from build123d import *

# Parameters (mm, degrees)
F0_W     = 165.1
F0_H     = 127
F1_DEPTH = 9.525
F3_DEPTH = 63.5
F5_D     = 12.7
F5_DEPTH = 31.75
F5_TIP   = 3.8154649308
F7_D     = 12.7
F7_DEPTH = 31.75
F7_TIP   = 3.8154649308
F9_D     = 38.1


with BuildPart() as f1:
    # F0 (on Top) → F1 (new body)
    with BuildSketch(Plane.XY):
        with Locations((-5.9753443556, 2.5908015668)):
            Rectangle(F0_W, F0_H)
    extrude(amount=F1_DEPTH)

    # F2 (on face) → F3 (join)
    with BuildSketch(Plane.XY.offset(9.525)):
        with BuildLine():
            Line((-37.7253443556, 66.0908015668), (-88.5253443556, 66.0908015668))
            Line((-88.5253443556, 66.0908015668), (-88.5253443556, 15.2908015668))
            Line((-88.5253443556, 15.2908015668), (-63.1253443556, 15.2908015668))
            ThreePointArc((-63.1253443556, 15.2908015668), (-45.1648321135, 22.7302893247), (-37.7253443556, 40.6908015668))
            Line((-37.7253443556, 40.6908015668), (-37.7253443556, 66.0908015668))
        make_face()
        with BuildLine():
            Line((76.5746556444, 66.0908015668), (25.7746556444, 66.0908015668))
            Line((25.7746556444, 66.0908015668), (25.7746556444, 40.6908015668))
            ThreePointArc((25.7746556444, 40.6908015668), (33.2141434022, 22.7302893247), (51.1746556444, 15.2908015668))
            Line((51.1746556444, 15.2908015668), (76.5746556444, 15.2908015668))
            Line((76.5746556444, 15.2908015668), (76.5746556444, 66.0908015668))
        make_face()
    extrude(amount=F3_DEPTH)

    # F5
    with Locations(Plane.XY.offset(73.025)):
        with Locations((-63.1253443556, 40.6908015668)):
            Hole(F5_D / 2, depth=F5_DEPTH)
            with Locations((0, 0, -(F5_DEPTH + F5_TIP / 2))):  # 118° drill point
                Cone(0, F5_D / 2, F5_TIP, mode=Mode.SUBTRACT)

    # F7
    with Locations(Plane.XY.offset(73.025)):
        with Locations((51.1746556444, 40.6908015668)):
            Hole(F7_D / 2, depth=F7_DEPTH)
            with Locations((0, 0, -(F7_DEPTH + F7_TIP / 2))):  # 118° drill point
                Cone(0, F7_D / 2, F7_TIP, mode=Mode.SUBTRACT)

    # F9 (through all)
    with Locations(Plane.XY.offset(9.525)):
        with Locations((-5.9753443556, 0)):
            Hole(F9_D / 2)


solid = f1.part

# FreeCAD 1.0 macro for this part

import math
import FreeCAD as App
import Part
import Sketcher
from FreeCAD import Vector
Q = App.Units.Quantity

doc = App.newDocument("Part")
body = doc.addObject("PartDesign::Body", "Body")

# Sketch on XY plane
sketch1 = body.newObject("Sketcher::SketchObject", "Sketch")
sketch1.AttachmentSupport = (doc.getObject("XY_Plane"), [""])
sketch1.MapMode = "FlatFace"
sketch1.addGeometry([
    Part.LineSegment(Vector(-89, 66, 0), Vector(-89, -61, 0)),
    Part.LineSegment(Vector(-89, -61, 0), Vector(77, -61, 0)),
    Part.LineSegment(Vector(77, -61, 0), Vector(77, 66, 0)),
    Part.LineSegment(Vector(77, 66, 0), Vector(-89, 66, 0)),
], False)
sketch1.addConstraint([
    Sketcher.Constraint("Coincident", 0, 2, 1, 1),
    Sketcher.Constraint("Coincident", 1, 2, 2, 1),
    Sketcher.Constraint("Coincident", 2, 2, 3, 1),
    Sketcher.Constraint("Coincident", 3, 2, 0, 1),
    Sketcher.Constraint("Vertical", 0),
    Sketcher.Constraint("Horizontal", 1),
    Sketcher.Constraint("Vertical", 2),
    Sketcher.Constraint("Horizontal", 3),
    Sketcher.Constraint("DistanceY", 0, 2, 0, 1, Q("5 in")),
    Sketcher.Constraint("DistanceX", 1, 1, 1, 2, Q("6.5 in")),
    Sketcher.Constraint("DistanceY", 0, 2, -1, 1, Q("2.3979999 in")),
    Sketcher.Constraint("DistanceX", 0, 2, -1, 1, Q("88.525344 mm")),
])
pad1 = body.newObject("PartDesign::Pad", "Pad")
pad1.Profile = sketch1
pad1.Length = Q("0.375 in")

# Sketch on XY plane
sketch2 = body.newObject("Sketcher::SketchObject", "Sketch001")
sketch2.AttachmentSupport = (doc.getObject("XY_Plane"), [""])
sketch2.MapMode = "FlatFace"
sketch2.AttachmentOffset = App.Placement(Vector(0, 0, 0.375 * 25.4), App.Rotation())
sketch2.addGeometry([
    Part.LineSegment(Vector(-38, 66, 0), Vector(-89, 66, 0)),  # 0
    Part.LineSegment(Vector(-89, 66, 0), Vector(-89, 15, 0)),  # 1
    Part.LineSegment(Vector(-89, 15, 0), Vector(-63, 15, 0)),  # 2
    Part.ArcOfCircle(Part.Circle(Vector(-63, 41, 0), Vector(0, 0, 1), 25), math.radians(-90), math.radians(0)),  # 3
    Part.LineSegment(Vector(-38, 41, 0), Vector(-38, 66, 0)),  # 4
    Part.LineSegment(Vector(77, 66, 0), Vector(26, 66, 0)),  # 5
    Part.LineSegment(Vector(26, 66, 0), Vector(26, 41, 0)),  # 6
    Part.ArcOfCircle(Part.Circle(Vector(51, 41, 0), Vector(0, 0, 1), 25), math.radians(180), math.radians(270)),  # 7
    Part.LineSegment(Vector(51, 15, 0), Vector(77, 15, 0)),  # 8
    Part.LineSegment(Vector(77, 15, 0), Vector(77, 66, 0)),  # 9
], False)
sketch2.addConstraint([
    Sketcher.Constraint("Coincident", 0, 2, 1, 1),
    Sketcher.Constraint("Coincident", 1, 2, 2, 1),
    Sketcher.Constraint("Tangent", 2, 2, 3, 1),
    Sketcher.Constraint("Tangent", 3, 2, 4, 1),
    Sketcher.Constraint("Coincident", 4, 2, 0, 1),
    Sketcher.Constraint("Coincident", 5, 2, 6, 1),
    Sketcher.Constraint("Tangent", 6, 2, 7, 1),
    Sketcher.Constraint("Tangent", 7, 2, 8, 1),
    Sketcher.Constraint("Coincident", 8, 2, 9, 1),
    Sketcher.Constraint("Coincident", 9, 2, 5, 1),
    Sketcher.Constraint("Horizontal", 0),
    Sketcher.Constraint("Vertical", 1),
    Sketcher.Constraint("Horizontal", 2),
    Sketcher.Constraint("Vertical", 4),
    Sketcher.Constraint("Horizontal", 5),
    Sketcher.Constraint("Vertical", 6),
    Sketcher.Constraint("Horizontal", 8),
    Sketcher.Constraint("Vertical", 9),
    Sketcher.Constraint("Equal", 3, 7),
    Sketcher.Constraint("Horizontal", 3, 3, 7, 3),
    Sketcher.Constraint("Horizontal", 4, 2, 5, 2),
    Sketcher.Constraint("Equal", 0, 5),
    Sketcher.Constraint("Equal", 5, 1),
    Sketcher.Constraint("Radius", 3, Q("1 in")),
    Sketcher.Constraint("DistanceX", 0, 2, 0, 1, Q("2 in")),
    Sketcher.Constraint("DistanceX", 3, 3, 7, 3, Q("4.5 in")),
    Sketcher.Constraint("DistanceY", -1, 1, 3, 3, Q("1.6020001 in")),
    Sketcher.Constraint("DistanceX", 3, 3, -1, 1, Q("63.125344 mm")),
])
pad2 = body.newObject("PartDesign::Pad", "Pad001")
pad2.Profile = sketch2
pad2.Length = Q("2.5 in")

# Sketch on XY plane
sketch3 = body.newObject("Sketcher::SketchObject", "Sketch002")
sketch3.AttachmentSupport = (doc.getObject("XY_Plane"), [""])
sketch3.MapMode = "FlatFace"
sketch3.AttachmentOffset = App.Placement(Vector(0, 0, 2.875 * 25.4), App.Rotation())
sketch3.addGeometry(Part.Circle(Vector(-63, 41, 0), Vector(0, 0, 1), 6), False)
sketch3.addConstraint([
    Sketcher.Constraint("Diameter", 0, Q("0.5 in")),
    Sketcher.Constraint("DistanceY", -1, 1, 0, 3, Q("1.6020001 in")),
    Sketcher.Constraint("DistanceX", 0, 3, -1, 1, Q("63.125344 mm")),
])
doc.recompute()
hole = body.newObject("PartDesign::Hole", "Hole")
hole.Profile = sketch3
hole.ThreadType = "None"
hole.Diameter = Q("0.5 in")
hole.DepthType = "Dimension"
hole.Depth = Q("1.25 in")
hole.DrillPoint = "Angled"
hole.DrillPointAngle = 118

# Sketch on XY plane
sketch4 = body.newObject("Sketcher::SketchObject", "Sketch003")
sketch4.AttachmentSupport = (doc.getObject("XY_Plane"), [""])
sketch4.MapMode = "FlatFace"
sketch4.AttachmentOffset = App.Placement(Vector(0, 0, 2.875 * 25.4), App.Rotation())
sketch4.addGeometry(Part.Circle(Vector(51, 41, 0), Vector(0, 0, 1), 6), False)
sketch4.addConstraint([
    Sketcher.Constraint("Diameter", 0, Q("0.5 in")),
    Sketcher.Constraint("DistanceY", -1, 1, 0, 3, Q("1.6020001 in")),
    Sketcher.Constraint("DistanceX", -1, 1, 0, 3, Q("51.174656 mm")),
])
doc.recompute()
hole2 = body.newObject("PartDesign::Hole", "Hole001")
hole2.Profile = sketch4
hole2.ThreadType = "None"
hole2.Diameter = Q("0.5 in")
hole2.DepthType = "Dimension"
hole2.Depth = Q("1.25 in")
hole2.DrillPoint = "Angled"
hole2.DrillPointAngle = 118

# Sketch on XY plane
sketch5 = body.newObject("Sketcher::SketchObject", "Sketch004")
sketch5.AttachmentSupport = (doc.getObject("XY_Plane"), [""])
sketch5.MapMode = "FlatFace"
sketch5.AttachmentOffset = App.Placement(Vector(0, 0, 0.375 * 25.4), App.Rotation())
sketch5.addGeometry(Part.Circle(Vector(-6, 0, 0), Vector(0, 0, 1), 19), False)
sketch5.addConstraint([
    Sketcher.Constraint("PointOnObject", 0, 3, -1),
    Sketcher.Constraint("Diameter", 0, Q("1.5 in")),
    Sketcher.Constraint("DistanceX", 0, 3, -1, 1, Q("5.975344 mm")),
])
doc.recompute()
hole3 = body.newObject("PartDesign::Hole", "Hole002")
hole3.Profile = sketch5
hole3.ThreadType = "None"
hole3.Diameter = Q("1.5 in")
hole3.DepthType = "ThroughAll"

doc.recompute()
